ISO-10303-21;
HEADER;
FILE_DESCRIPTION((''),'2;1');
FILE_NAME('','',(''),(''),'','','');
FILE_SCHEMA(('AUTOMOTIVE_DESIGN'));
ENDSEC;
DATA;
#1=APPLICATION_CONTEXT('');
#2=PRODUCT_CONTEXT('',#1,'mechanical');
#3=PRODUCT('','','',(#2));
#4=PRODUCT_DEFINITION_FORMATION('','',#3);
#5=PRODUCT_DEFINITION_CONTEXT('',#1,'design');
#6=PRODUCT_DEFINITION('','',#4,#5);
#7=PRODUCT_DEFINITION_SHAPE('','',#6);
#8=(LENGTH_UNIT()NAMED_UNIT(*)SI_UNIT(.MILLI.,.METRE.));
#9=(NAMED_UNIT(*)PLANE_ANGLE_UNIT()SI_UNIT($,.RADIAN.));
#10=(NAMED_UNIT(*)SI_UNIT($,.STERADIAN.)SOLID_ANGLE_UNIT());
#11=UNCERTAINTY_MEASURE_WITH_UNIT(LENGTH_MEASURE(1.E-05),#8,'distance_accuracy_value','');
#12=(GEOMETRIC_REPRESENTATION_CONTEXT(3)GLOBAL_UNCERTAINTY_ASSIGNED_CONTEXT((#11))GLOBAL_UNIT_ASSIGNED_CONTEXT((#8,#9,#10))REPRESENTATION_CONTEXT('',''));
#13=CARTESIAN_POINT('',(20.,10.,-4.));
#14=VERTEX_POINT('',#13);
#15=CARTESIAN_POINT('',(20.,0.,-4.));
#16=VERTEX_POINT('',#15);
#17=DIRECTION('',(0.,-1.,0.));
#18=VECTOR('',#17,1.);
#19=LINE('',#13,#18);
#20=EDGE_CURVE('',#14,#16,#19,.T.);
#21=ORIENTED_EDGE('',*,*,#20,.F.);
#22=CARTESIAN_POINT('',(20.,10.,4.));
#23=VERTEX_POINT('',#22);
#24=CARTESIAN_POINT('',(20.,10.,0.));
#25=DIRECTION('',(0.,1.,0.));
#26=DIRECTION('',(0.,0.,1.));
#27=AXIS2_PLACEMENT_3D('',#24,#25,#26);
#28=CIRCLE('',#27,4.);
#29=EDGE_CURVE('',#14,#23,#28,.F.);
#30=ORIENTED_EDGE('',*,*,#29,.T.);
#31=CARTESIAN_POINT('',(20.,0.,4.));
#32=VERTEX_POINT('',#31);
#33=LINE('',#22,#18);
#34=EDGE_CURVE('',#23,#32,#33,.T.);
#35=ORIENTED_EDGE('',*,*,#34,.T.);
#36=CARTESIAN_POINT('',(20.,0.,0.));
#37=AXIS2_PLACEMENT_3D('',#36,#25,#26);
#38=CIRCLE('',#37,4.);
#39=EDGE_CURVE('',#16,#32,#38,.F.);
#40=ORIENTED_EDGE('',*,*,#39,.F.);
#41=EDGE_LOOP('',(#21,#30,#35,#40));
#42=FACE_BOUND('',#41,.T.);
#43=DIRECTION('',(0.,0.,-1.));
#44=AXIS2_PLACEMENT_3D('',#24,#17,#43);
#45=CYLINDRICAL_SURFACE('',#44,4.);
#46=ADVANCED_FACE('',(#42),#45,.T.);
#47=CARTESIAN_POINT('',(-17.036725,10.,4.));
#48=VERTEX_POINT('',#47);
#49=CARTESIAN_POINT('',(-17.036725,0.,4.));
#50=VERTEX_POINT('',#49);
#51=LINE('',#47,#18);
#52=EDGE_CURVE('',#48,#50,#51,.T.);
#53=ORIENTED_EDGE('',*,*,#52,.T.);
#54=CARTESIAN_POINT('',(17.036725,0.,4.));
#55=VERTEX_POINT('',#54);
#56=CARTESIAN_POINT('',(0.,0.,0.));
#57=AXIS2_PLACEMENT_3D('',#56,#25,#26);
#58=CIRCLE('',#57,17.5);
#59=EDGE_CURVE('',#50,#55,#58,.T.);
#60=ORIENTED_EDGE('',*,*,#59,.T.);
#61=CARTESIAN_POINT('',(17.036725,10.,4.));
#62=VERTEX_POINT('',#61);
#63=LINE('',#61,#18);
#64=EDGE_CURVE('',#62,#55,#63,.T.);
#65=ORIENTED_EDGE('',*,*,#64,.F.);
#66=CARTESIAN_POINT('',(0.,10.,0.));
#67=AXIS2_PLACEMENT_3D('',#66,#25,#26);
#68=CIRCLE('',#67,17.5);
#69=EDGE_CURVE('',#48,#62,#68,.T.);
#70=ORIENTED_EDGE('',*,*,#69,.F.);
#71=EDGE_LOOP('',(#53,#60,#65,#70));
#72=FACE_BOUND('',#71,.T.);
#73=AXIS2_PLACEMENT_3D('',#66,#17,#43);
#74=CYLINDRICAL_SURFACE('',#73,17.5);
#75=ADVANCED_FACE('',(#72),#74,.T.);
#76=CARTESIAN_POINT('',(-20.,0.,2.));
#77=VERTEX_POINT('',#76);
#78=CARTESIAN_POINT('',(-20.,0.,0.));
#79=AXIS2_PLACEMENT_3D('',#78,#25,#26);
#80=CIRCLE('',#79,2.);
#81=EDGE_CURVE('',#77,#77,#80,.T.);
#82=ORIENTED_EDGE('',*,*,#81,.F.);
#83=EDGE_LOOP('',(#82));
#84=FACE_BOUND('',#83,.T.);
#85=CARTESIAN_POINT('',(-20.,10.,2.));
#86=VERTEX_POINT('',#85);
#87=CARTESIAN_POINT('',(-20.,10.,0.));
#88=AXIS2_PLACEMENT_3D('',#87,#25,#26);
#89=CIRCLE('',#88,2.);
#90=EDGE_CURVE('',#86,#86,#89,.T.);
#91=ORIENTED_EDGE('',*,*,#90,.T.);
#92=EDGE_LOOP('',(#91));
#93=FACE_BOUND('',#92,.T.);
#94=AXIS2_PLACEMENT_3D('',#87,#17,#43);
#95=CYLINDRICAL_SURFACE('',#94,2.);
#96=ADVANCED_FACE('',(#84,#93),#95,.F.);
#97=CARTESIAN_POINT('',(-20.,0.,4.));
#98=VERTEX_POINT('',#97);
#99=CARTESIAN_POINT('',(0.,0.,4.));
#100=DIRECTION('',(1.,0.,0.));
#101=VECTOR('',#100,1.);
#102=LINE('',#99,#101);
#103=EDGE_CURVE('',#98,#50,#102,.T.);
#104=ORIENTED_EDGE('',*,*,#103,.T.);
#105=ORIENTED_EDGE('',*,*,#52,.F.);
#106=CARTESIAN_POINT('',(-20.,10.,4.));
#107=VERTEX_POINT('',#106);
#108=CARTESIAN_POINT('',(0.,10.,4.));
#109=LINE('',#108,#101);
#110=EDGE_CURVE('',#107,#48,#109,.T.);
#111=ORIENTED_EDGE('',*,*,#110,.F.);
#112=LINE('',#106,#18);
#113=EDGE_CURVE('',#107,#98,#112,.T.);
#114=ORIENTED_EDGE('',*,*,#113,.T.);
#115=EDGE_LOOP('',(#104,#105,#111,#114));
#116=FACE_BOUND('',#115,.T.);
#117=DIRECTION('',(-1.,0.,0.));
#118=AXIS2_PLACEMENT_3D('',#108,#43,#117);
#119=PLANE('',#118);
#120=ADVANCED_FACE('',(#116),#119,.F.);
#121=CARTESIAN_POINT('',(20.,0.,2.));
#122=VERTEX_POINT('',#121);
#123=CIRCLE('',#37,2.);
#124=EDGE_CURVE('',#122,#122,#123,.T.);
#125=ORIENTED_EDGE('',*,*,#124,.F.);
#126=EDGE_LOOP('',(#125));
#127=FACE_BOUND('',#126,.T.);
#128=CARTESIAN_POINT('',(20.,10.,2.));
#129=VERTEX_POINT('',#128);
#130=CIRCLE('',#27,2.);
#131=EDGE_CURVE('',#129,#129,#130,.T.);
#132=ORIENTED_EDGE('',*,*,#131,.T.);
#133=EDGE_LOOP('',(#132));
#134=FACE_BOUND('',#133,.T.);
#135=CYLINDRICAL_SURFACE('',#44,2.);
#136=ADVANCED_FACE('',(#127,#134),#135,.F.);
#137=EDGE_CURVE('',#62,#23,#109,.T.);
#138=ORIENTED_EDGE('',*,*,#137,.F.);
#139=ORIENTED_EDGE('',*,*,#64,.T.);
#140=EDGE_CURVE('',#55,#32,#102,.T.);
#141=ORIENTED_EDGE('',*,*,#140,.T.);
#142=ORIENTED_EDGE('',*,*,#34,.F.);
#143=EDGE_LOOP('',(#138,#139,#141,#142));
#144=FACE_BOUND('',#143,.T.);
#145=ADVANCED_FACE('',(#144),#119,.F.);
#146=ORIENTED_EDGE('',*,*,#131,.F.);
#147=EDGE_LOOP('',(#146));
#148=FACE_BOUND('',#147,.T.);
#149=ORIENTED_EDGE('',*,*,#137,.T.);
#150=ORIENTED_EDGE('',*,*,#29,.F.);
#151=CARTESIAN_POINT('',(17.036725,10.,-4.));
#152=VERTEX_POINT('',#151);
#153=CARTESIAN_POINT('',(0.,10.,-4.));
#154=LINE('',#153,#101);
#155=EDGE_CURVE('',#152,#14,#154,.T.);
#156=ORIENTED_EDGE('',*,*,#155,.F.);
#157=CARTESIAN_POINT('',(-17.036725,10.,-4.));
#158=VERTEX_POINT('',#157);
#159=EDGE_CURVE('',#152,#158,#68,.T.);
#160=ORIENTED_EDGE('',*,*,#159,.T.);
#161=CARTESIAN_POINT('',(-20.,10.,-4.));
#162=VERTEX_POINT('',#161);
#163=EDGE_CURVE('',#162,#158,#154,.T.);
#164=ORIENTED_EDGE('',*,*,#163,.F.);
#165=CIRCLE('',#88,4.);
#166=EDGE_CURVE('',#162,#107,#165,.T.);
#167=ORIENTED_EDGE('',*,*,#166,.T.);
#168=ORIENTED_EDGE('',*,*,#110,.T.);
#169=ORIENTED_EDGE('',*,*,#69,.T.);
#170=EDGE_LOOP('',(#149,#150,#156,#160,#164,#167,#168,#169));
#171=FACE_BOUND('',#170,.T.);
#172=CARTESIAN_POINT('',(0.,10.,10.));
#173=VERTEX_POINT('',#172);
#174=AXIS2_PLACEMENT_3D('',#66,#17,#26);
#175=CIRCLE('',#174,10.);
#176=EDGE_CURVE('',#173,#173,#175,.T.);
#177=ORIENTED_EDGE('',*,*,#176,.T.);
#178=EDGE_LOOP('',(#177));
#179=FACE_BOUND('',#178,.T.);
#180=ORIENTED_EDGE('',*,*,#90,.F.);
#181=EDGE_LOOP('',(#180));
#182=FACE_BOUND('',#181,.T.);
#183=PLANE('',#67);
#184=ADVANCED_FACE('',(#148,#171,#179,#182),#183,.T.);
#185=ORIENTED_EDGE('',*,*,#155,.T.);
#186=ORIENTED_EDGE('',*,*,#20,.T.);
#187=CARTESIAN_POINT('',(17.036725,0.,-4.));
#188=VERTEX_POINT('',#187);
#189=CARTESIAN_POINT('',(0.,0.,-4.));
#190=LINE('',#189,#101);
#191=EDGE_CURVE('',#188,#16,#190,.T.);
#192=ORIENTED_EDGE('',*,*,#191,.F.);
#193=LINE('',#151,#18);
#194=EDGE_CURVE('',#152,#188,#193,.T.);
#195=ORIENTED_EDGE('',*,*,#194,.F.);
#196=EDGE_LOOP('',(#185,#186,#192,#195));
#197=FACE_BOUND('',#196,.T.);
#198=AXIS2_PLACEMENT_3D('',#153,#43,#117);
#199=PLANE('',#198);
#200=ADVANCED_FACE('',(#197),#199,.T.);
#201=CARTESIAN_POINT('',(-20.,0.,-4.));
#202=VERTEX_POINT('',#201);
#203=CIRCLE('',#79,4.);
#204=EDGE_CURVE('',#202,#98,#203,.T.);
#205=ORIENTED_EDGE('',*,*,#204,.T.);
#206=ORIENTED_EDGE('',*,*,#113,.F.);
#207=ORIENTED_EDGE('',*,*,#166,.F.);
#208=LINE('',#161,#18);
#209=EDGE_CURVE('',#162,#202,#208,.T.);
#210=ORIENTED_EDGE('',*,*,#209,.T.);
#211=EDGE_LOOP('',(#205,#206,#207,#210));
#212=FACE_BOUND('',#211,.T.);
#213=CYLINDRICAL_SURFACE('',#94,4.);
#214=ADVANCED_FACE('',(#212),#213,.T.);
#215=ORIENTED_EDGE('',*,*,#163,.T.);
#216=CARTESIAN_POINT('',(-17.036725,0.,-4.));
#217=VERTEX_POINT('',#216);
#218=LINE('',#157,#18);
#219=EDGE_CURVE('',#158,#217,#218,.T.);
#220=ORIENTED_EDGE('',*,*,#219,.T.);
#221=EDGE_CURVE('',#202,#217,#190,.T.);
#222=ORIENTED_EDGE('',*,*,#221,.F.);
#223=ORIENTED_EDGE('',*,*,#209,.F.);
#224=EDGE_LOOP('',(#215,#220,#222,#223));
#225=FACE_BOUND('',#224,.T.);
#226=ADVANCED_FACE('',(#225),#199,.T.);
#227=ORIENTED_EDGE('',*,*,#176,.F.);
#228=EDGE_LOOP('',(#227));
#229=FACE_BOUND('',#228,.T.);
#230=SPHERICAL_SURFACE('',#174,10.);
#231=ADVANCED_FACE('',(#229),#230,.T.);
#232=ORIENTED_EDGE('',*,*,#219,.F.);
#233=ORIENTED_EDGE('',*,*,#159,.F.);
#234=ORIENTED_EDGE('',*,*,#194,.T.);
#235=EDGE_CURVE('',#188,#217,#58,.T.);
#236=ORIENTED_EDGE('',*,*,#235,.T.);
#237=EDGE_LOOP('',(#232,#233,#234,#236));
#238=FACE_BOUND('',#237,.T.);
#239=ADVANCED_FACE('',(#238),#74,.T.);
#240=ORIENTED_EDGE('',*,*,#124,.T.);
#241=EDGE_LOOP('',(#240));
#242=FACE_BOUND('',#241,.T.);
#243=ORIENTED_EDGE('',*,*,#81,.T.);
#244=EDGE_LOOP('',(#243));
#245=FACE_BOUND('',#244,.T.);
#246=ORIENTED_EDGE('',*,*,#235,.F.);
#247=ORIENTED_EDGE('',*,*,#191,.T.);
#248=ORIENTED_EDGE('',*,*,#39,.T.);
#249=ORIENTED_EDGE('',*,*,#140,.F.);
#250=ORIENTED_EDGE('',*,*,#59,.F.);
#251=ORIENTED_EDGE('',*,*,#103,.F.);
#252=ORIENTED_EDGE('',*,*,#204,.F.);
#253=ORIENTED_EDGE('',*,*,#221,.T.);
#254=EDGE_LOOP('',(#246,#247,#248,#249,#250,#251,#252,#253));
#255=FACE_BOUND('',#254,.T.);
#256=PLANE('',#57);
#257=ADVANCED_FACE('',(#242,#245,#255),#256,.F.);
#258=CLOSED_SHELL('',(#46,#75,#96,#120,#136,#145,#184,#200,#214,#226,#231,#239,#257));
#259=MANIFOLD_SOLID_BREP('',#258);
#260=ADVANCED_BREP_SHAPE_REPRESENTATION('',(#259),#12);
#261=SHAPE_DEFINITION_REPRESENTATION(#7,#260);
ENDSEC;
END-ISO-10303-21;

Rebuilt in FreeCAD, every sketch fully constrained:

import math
import FreeCAD as App
import Part
import Sketcher

doc = App.newDocument("Part")
body = doc.addObject("PartDesign::Body", "Body")

sketch1 = body.newObject("Sketcher::SketchObject", "Sketch")
sketch1.AttachmentSupport = (doc.getObject("XZ_Plane"), [""])
sketch1.MapMode = "FlatFace"
sketch1.addGeometry(Part.LineSegment(App.Vector(17, 4, 0), App.Vector(20, 4, 0)), False)
sketch1.addGeometry(Part.ArcOfCircle(Part.Circle(App.Vector(20, 0, 0), App.Vector(0, 0, 1), 4), math.radians(-90), math.radians(90)), False)
sketch1.addGeometry(Part.LineSegment(App.Vector(20, -4, 0), App.Vector(17, -4, 0)), False)
sketch1.addGeometry(Part.ArcOfCircle(Part.Circle(App.Vector(0, 0, 0), App.Vector(0, 0, 1), 17.5), math.radians(-167), math.radians(-13)), False)
sketch1.addGeometry(Part.LineSegment(App.Vector(-17, -4, 0), App.Vector(-20, -4, 0)), False)
sketch1.addGeometry(Part.ArcOfCircle(Part.Circle(App.Vector(-20, 0, 0), App.Vector(0, 0, 1), 4), math.radians(90), math.radians(270)), False)
sketch1.addGeometry(Part.LineSegment(App.Vector(-20, 4, 0), App.Vector(-17, 4, 0)), False)
sketch1.addGeometry(Part.ArcOfCircle(Part.Circle(App.Vector(0, 0, 0), App.Vector(0, 0, 1), 17.5), math.radians(13), math.radians(167)), False)
sketch1.addGeometry(Part.Circle(App.Vector(20, 0, 0), App.Vector(0, 0, 1), 2), False)
sketch1.addGeometry(Part.Circle(App.Vector(-20, 0, 0), App.Vector(0, 0, 1), 2), False)
sketch1.addConstraint(Sketcher.Constraint("Tangent", 0, 2, 1, 2))
sketch1.addConstraint(Sketcher.Constraint("Tangent", 1, 1, 2, 1))
sketch1.addConstraint(Sketcher.Constraint("Coincident", 2, 2, 3, 2))
sketch1.addConstraint(Sketcher.Constraint("Coincident", 3, 1, 4, 1))
sketch1.addConstraint(Sketcher.Constraint("Tangent", 4, 2, 5, 2))
sketch1.addConstraint(Sketcher.Constraint("Tangent", 5, 1, 6, 1))
sketch1.addConstraint(Sketcher.Constraint("Coincident", 6, 2, 7, 2))
sketch1.addConstraint(Sketcher.Constraint("Coincident", 7, 1, 0, 1))
sketch1.addConstraint(Sketcher.Constraint("Horizontal", 0))
sketch1.addConstraint(Sketcher.Constraint("Horizontal", 2))
sketch1.addConstraint(Sketcher.Constraint("Horizontal", 4))
sketch1.addConstraint(Sketcher.Constraint("Horizontal", 6))
sketch1.addConstraint(Sketcher.Constraint("Coincident", 3, 3, -1, 1))
sketch1.addConstraint(Sketcher.Constraint("Coincident", 7, 3, -1, 1))
sketch1.addConstraint(Sketcher.Constraint("Coincident", 8, 3, 1, 3))
sketch1.addConstraint(Sketcher.Constraint("Coincident", 9, 3, 5, 3))
sketch1.addConstraint(Sketcher.Constraint("Equal", 1, 5))
sketch1.addConstraint(Sketcher.Constraint("Equal", 3, 7))
sketch1.addConstraint(Sketcher.Constraint("Equal", 8, 9))
sketch1.addConstraint(Sketcher.Constraint("Symmetric", 1, 3, 5, 3, -1, 1))
sketch1.addConstraint(Sketcher.Constraint("PointOnObject", 1, 3, -1))
sketch1.addConstraint(Sketcher.Constraint("Diameter", 8, 4.0))
sketch1.addConstraint(Sketcher.Constraint("Radius", 1, 4.0))
sketch1.addConstraint(Sketcher.Constraint("Radius", 3, 17.5))
sketch1.addConstraint(Sketcher.Constraint("DistanceX", -1, 1, 1, 3, 20.0))
pad1 = body.newObject("PartDesign::Pad", "Pad")
pad1.Profile = sketch1
pad1.Length = 10
pad1.Reversed = True

sketch2 = body.newObject("Sketcher::SketchObject", "Sketch001")
sketch2.AttachmentSupport = (doc.getObject("XZ_Plane"), [""])
sketch2.MapMode = "FlatFace"
sketch2.AttachmentOffset = App.Placement(App.Vector(0, 0, -10), App.Rotation())
sketch2.addGeometry(Part.LineSegment(App.Vector(0, 10, 0), App.Vector(0, -10, 0)), False)
sketch2.addGeometry(Part.ArcOfCircle(Part.Circle(App.Vector(0, 0, 0), App.Vector(0, 0, 1), 10), math.radians(90), math.radians(270)), False)
sketch2.addConstraint(Sketcher.Constraint("Coincident", 0, 1, 1, 1))
sketch2.addConstraint(Sketcher.Constraint("Coincident", 1, 2, 0, 2))
sketch2.addConstraint(Sketcher.Constraint("Vertical", 0))
sketch2.addConstraint(Sketcher.Constraint("Coincident", 1, 3, -1, 1))
sketch2.addConstraint(Sketcher.Constraint("PointOnObject", 0, 1, -2))
sketch2.addConstraint(Sketcher.Constraint("Radius", 1, 10.0))
revolution = body.newObject("PartDesign::Revolution", "Revolution")
revolution.Profile = sketch2
revolution.ReferenceAxis = (sketch2, ["V_Axis"])
revolution.Angle = 180
revolution.Reversed = True

doc.recompute()
